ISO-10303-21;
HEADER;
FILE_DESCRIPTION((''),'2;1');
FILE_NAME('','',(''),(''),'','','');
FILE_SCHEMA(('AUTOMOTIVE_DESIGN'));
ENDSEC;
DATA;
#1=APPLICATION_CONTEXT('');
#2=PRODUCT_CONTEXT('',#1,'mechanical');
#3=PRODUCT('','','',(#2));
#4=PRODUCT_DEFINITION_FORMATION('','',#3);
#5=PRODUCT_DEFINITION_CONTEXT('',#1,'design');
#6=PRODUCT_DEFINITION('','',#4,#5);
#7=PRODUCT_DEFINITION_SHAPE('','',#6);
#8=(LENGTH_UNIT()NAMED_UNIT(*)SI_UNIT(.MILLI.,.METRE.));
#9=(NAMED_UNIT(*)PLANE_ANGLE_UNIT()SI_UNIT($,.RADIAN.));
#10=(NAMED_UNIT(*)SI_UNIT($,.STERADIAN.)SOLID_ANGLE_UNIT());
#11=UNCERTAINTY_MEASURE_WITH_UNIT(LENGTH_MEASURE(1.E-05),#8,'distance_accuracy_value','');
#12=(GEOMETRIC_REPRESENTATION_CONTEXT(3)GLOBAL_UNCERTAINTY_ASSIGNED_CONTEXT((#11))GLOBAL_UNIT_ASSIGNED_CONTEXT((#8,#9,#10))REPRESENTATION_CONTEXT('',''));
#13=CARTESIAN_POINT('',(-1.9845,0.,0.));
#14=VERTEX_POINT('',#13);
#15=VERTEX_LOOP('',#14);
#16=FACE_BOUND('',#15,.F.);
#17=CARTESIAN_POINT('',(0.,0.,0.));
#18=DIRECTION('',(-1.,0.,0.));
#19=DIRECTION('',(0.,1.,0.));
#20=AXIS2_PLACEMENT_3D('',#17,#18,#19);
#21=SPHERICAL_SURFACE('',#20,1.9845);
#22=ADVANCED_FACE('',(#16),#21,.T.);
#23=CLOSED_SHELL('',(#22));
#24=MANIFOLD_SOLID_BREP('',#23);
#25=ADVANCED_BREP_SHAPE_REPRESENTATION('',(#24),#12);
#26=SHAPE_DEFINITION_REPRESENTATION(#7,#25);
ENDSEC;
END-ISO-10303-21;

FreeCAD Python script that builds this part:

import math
import FreeCAD as App
import Part
import Sketcher
from FreeCAD import Vector

doc = App.newDocument("Part")
body = doc.addObject("PartDesign::Body", "Body")

# Sketch on XY plane
sketch1 = doc.addObject("Sketcher::SketchObject", "Sketch")
body.addObject(sketch1)
sketch1.AttachmentSupport = (doc.XY_Plane, [""])
sketch1.MapMode = "FlatFace"
sketch1.addGeometry([
    Part.LineSegment(Vector(-1.9845, 0, 0), Vector(1.9845, 0, 0)),
    Part.ArcOfCircle(Part.Circle(Vector(0, 0, 0), Vector(0, 0, 1), 1.9845), math.radians(0), math.radians(180)),
], False)
sketch1.addConstraint([
    Sketcher.Constraint("Coincident", 0, 1, 1, 2),
    Sketcher.Constraint("Coincident", 1, 1, 0, 2),
    Sketcher.Constraint("Horizontal", 0),
    Sketcher.Constraint("Coincident", 1, 3, -1, 1),
    Sketcher.Constraint("PointOnObject", 0, 1, -1),
    Sketcher.Constraint("Radius", 1, 1.9845),
])
revolution = doc.addObject("PartDesign::Revolution", "Revolution")
body.addObject(revolution)
revolution.Profile = sketch1
revolution.ReferenceAxis = (sketch1, ["H_Axis"])
revolution.Angle = 360

doc.recompute()
